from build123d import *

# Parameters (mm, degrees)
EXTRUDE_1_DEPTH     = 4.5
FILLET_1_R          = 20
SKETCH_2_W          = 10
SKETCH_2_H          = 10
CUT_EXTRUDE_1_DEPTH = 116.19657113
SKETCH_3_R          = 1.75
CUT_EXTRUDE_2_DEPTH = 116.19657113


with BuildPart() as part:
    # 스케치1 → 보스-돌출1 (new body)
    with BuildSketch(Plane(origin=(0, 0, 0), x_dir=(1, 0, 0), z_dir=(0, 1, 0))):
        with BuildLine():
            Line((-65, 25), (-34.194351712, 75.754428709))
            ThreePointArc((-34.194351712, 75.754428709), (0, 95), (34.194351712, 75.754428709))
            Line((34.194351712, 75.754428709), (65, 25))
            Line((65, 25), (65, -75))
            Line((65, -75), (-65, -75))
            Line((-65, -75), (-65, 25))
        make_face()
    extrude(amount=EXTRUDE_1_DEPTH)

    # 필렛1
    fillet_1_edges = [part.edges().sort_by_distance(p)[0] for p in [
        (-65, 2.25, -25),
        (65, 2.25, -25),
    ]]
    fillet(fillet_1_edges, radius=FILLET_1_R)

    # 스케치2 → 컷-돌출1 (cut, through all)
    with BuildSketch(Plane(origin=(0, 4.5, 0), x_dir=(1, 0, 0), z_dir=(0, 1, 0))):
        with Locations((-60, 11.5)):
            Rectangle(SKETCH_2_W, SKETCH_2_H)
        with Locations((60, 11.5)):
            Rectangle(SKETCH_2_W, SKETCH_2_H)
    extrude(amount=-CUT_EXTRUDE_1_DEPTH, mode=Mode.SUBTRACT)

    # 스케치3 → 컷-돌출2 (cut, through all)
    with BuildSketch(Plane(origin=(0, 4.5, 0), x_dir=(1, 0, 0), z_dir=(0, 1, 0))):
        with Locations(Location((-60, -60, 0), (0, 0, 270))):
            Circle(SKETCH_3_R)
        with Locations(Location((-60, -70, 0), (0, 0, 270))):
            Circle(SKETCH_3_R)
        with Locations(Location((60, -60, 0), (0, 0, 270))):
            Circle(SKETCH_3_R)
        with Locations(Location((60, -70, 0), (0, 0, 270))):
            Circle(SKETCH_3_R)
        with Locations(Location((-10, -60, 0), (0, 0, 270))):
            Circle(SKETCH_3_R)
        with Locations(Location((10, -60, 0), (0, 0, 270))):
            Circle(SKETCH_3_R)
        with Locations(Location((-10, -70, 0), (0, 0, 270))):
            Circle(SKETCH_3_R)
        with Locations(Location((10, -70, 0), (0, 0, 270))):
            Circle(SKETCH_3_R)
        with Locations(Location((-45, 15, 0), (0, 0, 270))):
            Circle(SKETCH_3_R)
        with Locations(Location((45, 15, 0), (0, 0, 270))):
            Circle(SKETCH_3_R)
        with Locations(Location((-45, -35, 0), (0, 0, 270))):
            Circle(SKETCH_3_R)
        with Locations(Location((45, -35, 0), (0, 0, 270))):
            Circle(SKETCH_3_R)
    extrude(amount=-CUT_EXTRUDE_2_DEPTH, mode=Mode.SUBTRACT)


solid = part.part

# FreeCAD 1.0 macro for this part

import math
import FreeCAD as App
import Part
import Sketcher

V = App.Vector
Q = App.Units.Quantity


def edges_at(feature, points):
    """Names of the edges that pass closest to the given points."""
    edges = feature.Shape.Edges
    near = lambda p: min(range(len(edges)), key=lambda i: edges[i].distToShape(Part.Vertex(*p))[0])
    return sorted({f"Edge{near(p) + 1}" for p in points})

doc = App.newDocument("Part")
body = doc.addObject("PartDesign::Body", "Body")

# Sketch on XZ plane
sketch1 = doc.addObject("Sketcher::SketchObject", "Sketch")
body.addObject(sketch1)
sketch1.AttachmentSupport = (doc.XZ_Plane, [""])
sketch1.MapMode = "FlatFace"
sketch1.addGeometry(Part.LineSegment(V(-34, -76, 0), V(-65, -25, 0)), False)
sketch1.addGeometry(Part.LineSegment(V(-65, -25, 0), V(-65, 75, 0)), False)
sketch1.addGeometry(Part.LineSegment(V(-65, 75, 0), V(65, 75, 0)), False)
sketch1.addGeometry(Part.LineSegment(V(65, 75, 0), V(65, -25, 0)), False)
sketch1.addGeometry(Part.LineSegment(V(65, -25, 0), V(34, -76, 0)), False)
sketch1.addGeometry(Part.ArcOfCircle(Part.Circle(V(0, -55, 0), V(0, 0, 1), 40), math.radians(-149), math.radians(-31)), False)
sketch1.addConstraint(Sketcher.Constraint("Coincident", 0, 2, 1, 1))
sketch1.addConstraint(Sketcher.Constraint("Coincident", 1, 2, 2, 1))
sketch1.addConstraint(Sketcher.Constraint("Coincident", 2, 2, 3, 1))
sketch1.addConstraint(Sketcher.Constraint("Coincident", 3, 2, 4, 1))
sketch1.addConstraint(Sketcher.Constraint("Tangent", 4, 2, 5, 2))
sketch1.addConstraint(Sketcher.Constraint("Tangent", 5, 1, 0, 1))
sketch1.addConstraint(Sketcher.Constraint("Vertical", 1))
sketch1.addConstraint(Sketcher.Constraint("Horizontal", 2))
sketch1.addConstraint(Sketcher.Constraint("Vertical", 3))
sketch1.addConstraint(Sketcher.Constraint("Symmetric", 0, 2, 3, 2, -2))
sketch1.addConstraint(Sketcher.Constraint("PointOnObject", 5, 3, -2))
sketch1.addConstraint(Sketcher.Constraint("Radius", 5, Q("40 mm")))
sketch1.addConstraint(Sketcher.Constraint("DistanceX", 2, 1, 2, 2, Q("130 mm")))
sketch1.addConstraint(Sketcher.Constraint("DistanceY", 1, 1, 1, 2, Q("100 mm")))
sketch1.addConstraint(Sketcher.Constraint("DistanceY", 5, 3, -1, 1, Q("55 mm")))
sketch1.addConstraint(Sketcher.Constraint("DistanceY", 0, 2, -1, 1, Q("25 mm")))
pad1 = doc.addObject("PartDesign::Pad", "Pad")
body.addObject(pad1)
pad1.Profile = sketch1
pad1.Length = 4.5
pad1.Reversed = True
doc.recompute()

fillet = doc.addObject("PartDesign::Fillet", "Fillet")
body.addObject(fillet)
fillet.Base = (pad1, edges_at(pad1, [(-65, 2.25, -25), (65, 2.25, -25)]))
fillet.Radius = 20

# Sketch on XZ plane
sketch2 = doc.addObject("Sketcher::SketchObject", "Sketch001")
body.addObject(sketch2)
sketch2.AttachmentSupport = (doc.XZ_Plane, [""])
sketch2.MapMode = "FlatFace"
sketch2.AttachmentOffset = App.Placement(V(0, 0, -4.5), App.Rotation())
sketch2.addGeometry(Part.LineSegment(V(-65, -16, 0), V(-65, -6, 0)), False)
sketch2.addGeometry(Part.LineSegment(V(-65, -6, 0), V(-55, -6, 0)), False)
sketch2.addGeometry(Part.LineSegment(V(-55, -6, 0), V(-55, -16, 0)), False)
sketch2.addGeometry(Part.LineSegment(V(-55, -16, 0), V(-65, -16, 0)), False)
sketch2.addGeometry(Part.LineSegment(V(55, -16, 0), V(55, -6, 0)), False)
sketch2.addGeometry(Part.LineSegment(V(55, -6, 0), V(65, -6, 0)), False)
sketch2.addGeometry(Part.LineSegment(V(65, -6, 0), V(65, -16, 0)), False)
sketch2.addGeometry(Part.LineSegment(V(65, -16, 0), V(55, -16, 0)), False)
sketch2.addConstraint(Sketcher.Constraint("Coincident", 0, 2, 1, 1))
sketch2.addConstraint(Sketcher.Constraint("Coincident", 1, 2, 2, 1))
sketch2.addConstraint(Sketcher.Constraint("Coincident", 2, 2, 3, 1))
sketch2.addConstraint(Sketcher.Constraint("Coincident", 3, 2, 0, 1))
sketch2.addConstraint(Sketcher.Constraint("Coincident", 4, 2, 5, 1))
sketch2.addConstraint(Sketcher.Constraint("Coincident", 5, 2, 6, 1))
sketch2.addConstraint(Sketcher.Constraint("Coincident", 6, 2, 7, 1))
sketch2.addConstraint(Sketcher.Constraint("Coincident", 7, 2, 4, 1))
sketch2.addConstraint(Sketcher.Constraint("Vertical", 0))
sketch2.addConstraint(Sketcher.Constraint("Horizontal", 1))
sketch2.addConstraint(Sketcher.Constraint("Vertical", 2))
sketch2.addConstraint(Sketcher.Constraint("Horizontal", 3))
sketch2.addConstraint(Sketcher.Constraint("Vertical", 4))
sketch2.addConstraint(Sketcher.Constraint("Horizontal", 5))
sketch2.addConstraint(Sketcher.Constraint("Vertical", 6))
sketch2.addConstraint(Sketcher.Constraint("Horizontal", 7))
sketch2.addConstraint(Sketcher.Constraint("Symmetric", 1, 2, 4, 2, -2))
sketch2.addConstraint(Sketcher.Constraint("Symmetric", 3, 2, 6, 2, -2))
sketch2.addConstraint(Sketcher.Constraint("Equal", 7, 0))
sketch2.addConstraint(Sketcher.Constraint("DistanceX", 1, 1, 1, 2, Q("10 mm")))
sketch2.addConstraint(Sketcher.Constraint("DistanceX", 0, 2, -1, 1, Q("65 mm")))
sketch2.addConstraint(Sketcher.Constraint("DistanceY", 0, 2, -1, 1, Q("6.5 mm")))
pocket1 = doc.addObject("PartDesign::Pocket", "Pocket")
body.addObject(pocket1)
pocket1.Profile = sketch2
pocket1.Type = "ThroughAll"
pocket1.Reversed = True

# Sketch on XZ plane
sketch3 = doc.addObject("Sketcher::SketchObject", "Sketch002")
body.addObject(sketch3)
sketch3.AttachmentSupport = (doc.XZ_Plane, [""])
sketch3.MapMode = "FlatFace"
sketch3.AttachmentOffset = App.Placement(V(0, 0, -4.5), App.Rotation())
sketch3.addGeometry(Part.Circle(V(-60, 60, 0), V(0, 0, 1), 1.8), False)
sketch3.addGeometry(Part.Circle(V(-60, 70, 0), V(0, 0, 1), 1.8), False)
sketch3.addGeometry(Part.Circle(V(60, 60, 0), V(0, 0, 1), 1.8), False)
sketch3.addGeometry(Part.Circle(V(60, 70, 0), V(0, 0, 1), 1.8), False)
sketch3.addGeometry(Part.Circle(V(-10, 60, 0), V(0, 0, 1), 1.8), False)
sketch3.addGeometry(Part.Circle(V(10, 60, 0), V(0, 0, 1), 1.8), False)
sketch3.addGeometry(Part.Circle(V(-10, 70, 0), V(0, 0, 1), 1.8), False)
sketch3.addGeometry(Part.Circle(V(10, 70, 0), V(0, 0, 1), 1.8), False)
sketch3.addGeometry(Part.Circle(V(-45, -15, 0), V(0, 0, 1), 1.8), False)
sketch3.addGeometry(Part.Circle(V(45, -15, 0), V(0, 0, 1), 1.8), False)
sketch3.addGeometry(Part.Circle(V(-45, 35, 0), V(0, 0, 1), 1.8), False)
sketch3.addGeometry(Part.Circle(V(45, 35, 0), V(0, 0, 1), 1.8), False)
sketch3.addConstraint(Sketcher.Constraint("Equal", 0, 1))
sketch3.addConstraint(Sketcher.Constraint("Equal", 1, 2))
sketch3.addConstraint(Sketcher.Constraint("Equal", 2, 3))
sketch3.addConstraint(Sketcher.Constraint("Equal", 3, 4))
sketch3.addConstraint(Sketcher.Constraint("Equal", 4, 5))
sketch3.addConstraint(Sketcher.Constraint("Equal", 5, 6))
sketch3.addConstraint(Sketcher.Constraint("Equal", 6, 7))
sketch3.addConstraint(Sketcher.Constraint("Equal", 7, 8))
sketch3.addConstraint(Sketcher.Constraint("Equal", 8, 9))
sketch3.addConstraint(Sketcher.Constraint("Equal", 9, 10))
sketch3.addConstraint(Sketcher.Constraint("Equal", 10, 11))
sketch3.addConstraint(Sketcher.Constraint("Symmetric", 0, 3, 2, 3, -2))
sketch3.addConstraint(Sketcher.Constraint("Symmetric", 1, 3, 3, 3, -2))
sketch3.addConstraint(Sketcher.Constraint("Symmetric", 4, 3, 5, 3, -2))
sketch3.addConstraint(Sketcher.Constraint("Symmetric", 6, 3, 7, 3, -2))
sketch3.addConstraint(Sketcher.Constraint("Symmetric", 8, 3, 9, 3, -2))
sketch3.addConstraint(Sketcher.Constraint("Symmetric", 10, 3, 11, 3, -2))
sketch3.addConstraint(Sketcher.Constraint("Horizontal", 2, 3, 4, 3))
sketch3.addConstraint(Sketcher.Constraint("Horizontal", 3, 3, 6, 3))
sketch3.addConstraint(Sketcher.Constraint("Vertical", 0, 3, 1, 3))
sketch3.addConstraint(Sketcher.Constraint("Vertical", 4, 3, 6, 3))
sketch3.addConstraint(Sketcher.Constraint("Vertical", 8, 3, 10, 3))
sketch3.addConstraint(Sketcher.Constraint("Diameter", 0, Q("3.5 mm")))
sketch3.addConstraint(Sketcher.Constraint("DistanceX", 0, 3, -1, 1, Q("60 mm")))
sketch3.addConstraint(Sketcher.Constraint("DistanceY", -1, 1, 0, 3, Q("60 mm")))
sketch3.addConstraint(Sketcher.Constraint("DistanceY", -1, 1, 1, 3, Q("70 mm")))
sketch3.addConstraint(Sketcher.Constraint("DistanceX", 4, 3, -1, 1, Q("10 mm")))
sketch3.addConstraint(Sketcher.Constraint("DistanceX", 8, 3, -1, 1, Q("45 mm")))
sketch3.addConstraint(Sketcher.Constraint("DistanceY", 8, 3, -1, 1, Q("15 mm")))
sketch3.addConstraint(Sketcher.Constraint("DistanceY", -1, 1, 10, 3, Q("35 mm")))
pocket2 = doc.addObject("PartDesign::Pocket", "Pocket001")
body.addObject(pocket2)
pocket2.Profile = sketch3
pocket2.Type = "ThroughAll"
pocket2.Reversed = True

doc.recompute()
